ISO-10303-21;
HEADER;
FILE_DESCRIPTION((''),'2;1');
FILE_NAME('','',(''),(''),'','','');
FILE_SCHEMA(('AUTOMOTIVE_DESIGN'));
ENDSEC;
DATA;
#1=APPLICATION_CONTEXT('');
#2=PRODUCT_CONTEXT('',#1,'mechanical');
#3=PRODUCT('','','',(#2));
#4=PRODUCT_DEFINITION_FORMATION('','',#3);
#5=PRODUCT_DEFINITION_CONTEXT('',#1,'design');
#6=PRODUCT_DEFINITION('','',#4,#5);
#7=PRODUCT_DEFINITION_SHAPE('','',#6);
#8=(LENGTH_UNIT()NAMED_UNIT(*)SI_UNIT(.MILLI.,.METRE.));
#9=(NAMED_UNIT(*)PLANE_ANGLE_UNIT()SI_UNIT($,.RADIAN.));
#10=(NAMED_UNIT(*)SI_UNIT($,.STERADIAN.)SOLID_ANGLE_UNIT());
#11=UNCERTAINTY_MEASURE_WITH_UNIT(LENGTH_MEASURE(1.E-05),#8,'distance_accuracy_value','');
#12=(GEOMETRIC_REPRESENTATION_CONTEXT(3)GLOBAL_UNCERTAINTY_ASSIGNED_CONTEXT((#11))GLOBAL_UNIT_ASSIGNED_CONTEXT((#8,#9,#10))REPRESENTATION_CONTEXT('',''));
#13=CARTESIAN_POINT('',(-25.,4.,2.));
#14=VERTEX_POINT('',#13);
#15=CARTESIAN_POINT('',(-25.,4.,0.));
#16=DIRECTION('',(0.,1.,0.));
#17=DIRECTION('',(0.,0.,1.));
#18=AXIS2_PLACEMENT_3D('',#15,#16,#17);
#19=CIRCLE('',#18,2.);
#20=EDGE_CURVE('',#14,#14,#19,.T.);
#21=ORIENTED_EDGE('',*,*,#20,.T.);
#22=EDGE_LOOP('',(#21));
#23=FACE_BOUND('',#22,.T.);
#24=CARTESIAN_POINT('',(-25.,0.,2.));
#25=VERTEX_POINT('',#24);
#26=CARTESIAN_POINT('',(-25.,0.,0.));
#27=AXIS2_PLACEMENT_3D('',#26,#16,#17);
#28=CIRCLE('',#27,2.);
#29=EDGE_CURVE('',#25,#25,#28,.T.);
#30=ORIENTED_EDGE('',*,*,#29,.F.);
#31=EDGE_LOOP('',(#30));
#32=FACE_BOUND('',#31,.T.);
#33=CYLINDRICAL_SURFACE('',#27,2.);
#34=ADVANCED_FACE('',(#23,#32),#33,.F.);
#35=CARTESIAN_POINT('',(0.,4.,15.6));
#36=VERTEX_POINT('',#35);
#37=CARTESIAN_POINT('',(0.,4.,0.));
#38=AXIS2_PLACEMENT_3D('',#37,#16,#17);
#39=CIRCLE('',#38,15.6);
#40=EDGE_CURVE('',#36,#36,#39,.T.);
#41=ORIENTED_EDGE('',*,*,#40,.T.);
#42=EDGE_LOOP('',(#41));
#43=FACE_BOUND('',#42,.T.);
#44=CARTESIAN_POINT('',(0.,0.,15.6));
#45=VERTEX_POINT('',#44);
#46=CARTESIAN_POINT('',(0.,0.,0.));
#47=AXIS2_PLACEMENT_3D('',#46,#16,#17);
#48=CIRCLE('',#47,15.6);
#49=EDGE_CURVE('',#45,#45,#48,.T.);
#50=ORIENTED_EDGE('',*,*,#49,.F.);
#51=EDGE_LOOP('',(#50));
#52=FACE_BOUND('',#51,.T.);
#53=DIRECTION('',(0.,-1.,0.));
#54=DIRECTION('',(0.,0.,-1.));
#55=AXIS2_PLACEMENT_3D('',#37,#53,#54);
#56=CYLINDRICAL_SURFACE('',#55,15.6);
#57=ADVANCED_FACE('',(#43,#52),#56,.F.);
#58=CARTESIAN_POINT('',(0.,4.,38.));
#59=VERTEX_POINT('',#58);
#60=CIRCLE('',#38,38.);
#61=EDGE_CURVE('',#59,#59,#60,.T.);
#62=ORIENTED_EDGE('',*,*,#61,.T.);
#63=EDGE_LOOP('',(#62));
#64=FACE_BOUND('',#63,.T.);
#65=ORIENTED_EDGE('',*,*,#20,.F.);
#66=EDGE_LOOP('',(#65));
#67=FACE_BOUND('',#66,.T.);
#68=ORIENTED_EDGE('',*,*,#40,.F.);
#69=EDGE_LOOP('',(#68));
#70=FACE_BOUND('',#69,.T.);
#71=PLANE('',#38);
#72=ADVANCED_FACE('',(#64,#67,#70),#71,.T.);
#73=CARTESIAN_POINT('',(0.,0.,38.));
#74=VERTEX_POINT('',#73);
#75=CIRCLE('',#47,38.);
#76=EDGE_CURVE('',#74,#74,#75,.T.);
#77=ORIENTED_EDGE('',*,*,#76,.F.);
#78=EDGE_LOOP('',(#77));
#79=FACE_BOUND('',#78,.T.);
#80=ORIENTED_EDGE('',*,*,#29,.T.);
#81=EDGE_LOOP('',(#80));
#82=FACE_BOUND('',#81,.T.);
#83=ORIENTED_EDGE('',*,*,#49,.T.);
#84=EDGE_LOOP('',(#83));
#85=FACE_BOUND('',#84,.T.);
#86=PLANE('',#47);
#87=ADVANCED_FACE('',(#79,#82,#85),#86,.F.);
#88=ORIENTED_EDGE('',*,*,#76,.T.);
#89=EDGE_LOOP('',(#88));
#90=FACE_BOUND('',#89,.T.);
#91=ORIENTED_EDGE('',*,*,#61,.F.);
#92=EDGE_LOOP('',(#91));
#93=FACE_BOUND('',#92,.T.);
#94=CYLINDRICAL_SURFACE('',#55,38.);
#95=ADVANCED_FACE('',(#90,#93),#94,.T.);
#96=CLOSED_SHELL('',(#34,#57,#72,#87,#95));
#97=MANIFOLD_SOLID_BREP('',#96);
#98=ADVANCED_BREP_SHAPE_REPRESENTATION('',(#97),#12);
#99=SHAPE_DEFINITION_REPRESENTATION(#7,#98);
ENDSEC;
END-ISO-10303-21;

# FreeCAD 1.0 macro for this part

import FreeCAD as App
import Part
import Sketcher

V = App.Vector
Q = App.Units.Quantity

doc = App.newDocument("Part")
body = doc.addObject("PartDesign::Body", "Body")

sketch1 = body.newObject("Sketcher::SketchObject", "Sketch")
sketch1.AttachmentSupport = (doc.getObject("XZ_Plane"), [""])
sketch1.MapMode = "FlatFace"
sketch1.addGeometry(Part.Circle(V(0, 0, 0), V(0, 0, 1), 38), False)
sketch1.addGeometry(Part.Circle(V(0, 0, 0), V(0, 0, 1), 15.6), False)
sketch1.addConstraint(Sketcher.Constraint("Coincident", 0, 3, -1, 1))
sketch1.addConstraint(Sketcher.Constraint("Coincident", 1, 3, -1, 1))
sketch1.addConstraint(Sketcher.Constraint("Diameter", 0, Q("76 mm")))
sketch1.addConstraint(Sketcher.Constraint("Diameter", 1, Q("31.2 mm")))
pad1 = body.newObject("PartDesign::Pad", "Pad")
pad1.Profile = sketch1
pad1.Length = 4
pad1.Reversed = True

sketch2 = body.newObject("Sketcher::SketchObject", "Sketch001")
sketch2.AttachmentSupport = (doc.getObject("XZ_Plane"), [""])
sketch2.MapMode = "FlatFace"
sketch2.AttachmentOffset = App.Placement(V(0, 0, -4), App.Rotation())
sketch2.addGeometry(Part.Circle(V(-25, 0, 0), V(0, 0, 1), 2), False)
sketch2.addConstraint(Sketcher.Constraint("PointOnObject", 0, 3, -1))
sketch2.addConstraint(Sketcher.Constraint("Diameter", 0, Q("4 mm")))
sketch2.addConstraint(Sketcher.Constraint("DistanceX", 0, 3, -1, 1, Q("25 mm")))
pocket1 = body.newObject("PartDesign::Pocket", "Pocket")
pocket1.Profile = sketch2
pocket1.Type = "ThroughAll"
pocket1.Reversed = True

doc.recompute()
